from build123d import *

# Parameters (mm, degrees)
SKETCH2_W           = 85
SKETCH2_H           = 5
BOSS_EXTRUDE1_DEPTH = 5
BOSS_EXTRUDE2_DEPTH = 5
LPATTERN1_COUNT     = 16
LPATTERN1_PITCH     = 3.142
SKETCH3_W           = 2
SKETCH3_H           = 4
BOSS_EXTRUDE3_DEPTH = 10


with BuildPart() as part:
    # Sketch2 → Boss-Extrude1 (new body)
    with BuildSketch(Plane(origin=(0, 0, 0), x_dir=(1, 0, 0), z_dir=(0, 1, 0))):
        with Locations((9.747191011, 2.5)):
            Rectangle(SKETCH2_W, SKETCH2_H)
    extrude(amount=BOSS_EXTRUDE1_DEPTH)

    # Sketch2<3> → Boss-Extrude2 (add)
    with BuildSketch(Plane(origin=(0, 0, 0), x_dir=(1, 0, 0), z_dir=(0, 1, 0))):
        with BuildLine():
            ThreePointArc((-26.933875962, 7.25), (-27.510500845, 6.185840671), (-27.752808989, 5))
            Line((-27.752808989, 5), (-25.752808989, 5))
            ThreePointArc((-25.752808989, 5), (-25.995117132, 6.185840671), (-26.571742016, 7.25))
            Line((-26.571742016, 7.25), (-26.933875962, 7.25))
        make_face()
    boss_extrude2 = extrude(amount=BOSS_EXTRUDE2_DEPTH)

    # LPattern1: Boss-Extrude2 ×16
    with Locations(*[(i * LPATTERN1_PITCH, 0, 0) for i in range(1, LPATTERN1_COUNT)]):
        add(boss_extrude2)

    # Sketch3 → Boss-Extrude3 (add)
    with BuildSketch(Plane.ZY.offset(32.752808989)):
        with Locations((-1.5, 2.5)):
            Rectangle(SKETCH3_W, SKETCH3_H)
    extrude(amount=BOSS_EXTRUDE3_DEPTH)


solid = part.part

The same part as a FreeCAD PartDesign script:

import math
import FreeCAD as App
import Part
import Sketcher
from FreeCAD import Vector


def add_polygon(sketch, points):
    """Adds a closed chain of lines whose ends are joined by coincident constraints."""
    first, n = sketch.GeometryCount, len(points)
    for a, b in zip(points, points[1:] + points[:1]):
        sketch.addGeometry(Part.LineSegment(App.Vector(*a, 0), App.Vector(*b, 0)), False)
    for i in range(n):
        sketch.addConstraint(Sketcher.Constraint("Coincident", first + i, 2, first + (i + 1) % n, 1))

doc = App.newDocument("Part")
body = doc.addObject("PartDesign::Body", "Body")

# Sketch on XZ plane
sketch1 = body.newObject("Sketcher::SketchObject", "Sketch")
sketch1.AttachmentSupport = (doc.getObject("XZ_Plane"), [""])
sketch1.MapMode = "FlatFace"
add_polygon(sketch1, [(-33, -5), (-33, 0), (52, 0), (52, -5)])  # lines 0-3
sketch1.addConstraint([
    Sketcher.Constraint("Vertical", 0),
    Sketcher.Constraint("Horizontal", 1),
    Sketcher.Constraint("Vertical", 2),
    Sketcher.Constraint("Horizontal", 3),
    Sketcher.Constraint("PointOnObject", 0, 2, -1),
    Sketcher.Constraint("DistanceX", 1, 1, 1, 2, 85.0),
    Sketcher.Constraint("DistanceY", 0, 1, 0, 2, 5.0),
    Sketcher.Constraint("DistanceX", 0, 2, -1, 1, 32.752809),
])
pad1 = body.newObject("PartDesign::Pad", "Pad")
pad1.Profile = sketch1
pad1.Length = 5
pad1.Reversed = True

# Sketch on XZ plane
sketch2 = body.newObject("Sketcher::SketchObject", "Sketch001")
sketch2.AttachmentSupport = (doc.getObject("XZ_Plane"), [""])
sketch2.MapMode = "FlatFace"
sketch2.addGeometry([
    Part.ArcOfCircle(Part.Circle(Vector(-23.64, -4.78, 0), Vector(0, 0, 1), 4.12), math.radians(-177), math.radians(-143)),
    Part.LineSegment(Vector(-27.75, -5, 0), Vector(-25.75, -5, 0)),
    Part.ArcOfCircle(Part.Circle(Vector(-29.86, -4.78, 0), Vector(0, 0, 1), 4.12), math.radians(-37), math.radians(-3)),
    Part.LineSegment(Vector(-26.57, -7.25, 0), Vector(-26.93, -7.25, 0)),
], False)
sketch2.addConstraint([
    Sketcher.Constraint("Coincident", 0, 1, 1, 1),
    Sketcher.Constraint("Coincident", 1, 2, 2, 2),
    Sketcher.Constraint("Coincident", 2, 1, 3, 1),
    Sketcher.Constraint("Coincident", 3, 2, 0, 2),
    Sketcher.Constraint("Horizontal", 1),
    Sketcher.Constraint("Horizontal", 3),
    Sketcher.Constraint("Equal", 0, 2),
    Sketcher.Constraint("Horizontal", 0, 3, 2, 3),
    Sketcher.Constraint("DistanceX", 1, 1, 1, 2, 2.0),
    Sketcher.Constraint("DistanceY", 0, 1, -1, 1, 5.0),
    Sketcher.Constraint("DistanceY", 2, 1, -1, 1, 7.25),
    Sketcher.Constraint("Radius", 0, 4.117608),
    Sketcher.Constraint("DistanceX", 3, 2, 3, 1, 0.362134),
    Sketcher.Constraint("DistanceX", 0, 1, -1, 1, 27.752809),
])
pad2 = body.newObject("PartDesign::Pad", "Pad001")
pad2.Profile = sketch2
pad2.Length = 5
pad2.Reversed = True
doc.recompute()

linearpattern = body.newObject("PartDesign::LinearPattern", "LinearPattern")
linearpattern.Originals = [pad2]
linearpattern.Direction = (doc.getObject("X_Axis"), [""])
linearpattern.Mode = "offset"
linearpattern.Offset = 3.142
linearpattern.Occurrences = 16
body.Tip = linearpattern

# Sketch on YZ plane
sketch3 = body.newObject("Sketcher::SketchObject", "Sketch002")
sketch3.AttachmentSupport = (doc.getObject("YZ_Plane"), [""])
sketch3.MapMode = "FlatFace"
sketch3.AttachmentOffset = App.Placement(Vector(0, 0, -32.752809), App.Rotation())
add_polygon(sketch3, [(4.5, -2.5), (0.5, -2.5), (0.5, -0.5), (4.5, -0.5)])  # lines 0-3
sketch3.addConstraint([
    Sketcher.Constraint("Horizontal", 0),
    Sketcher.Constraint("Vertical", 1),
    Sketcher.Constraint("Horizontal", 2),
    Sketcher.Constraint("Vertical", 3),
    Sketcher.Constraint("DistanceX", 0, 2, 0, 1, 4.0),
    Sketcher.Constraint("DistanceY", 1, 1, 1, 2, 2.0),
    Sketcher.Constraint("DistanceX", -1, 1, 0, 2, 0.5),
    Sketcher.Constraint("DistanceY", 0, 2, -1, 1, 2.5),
])
pad3 = body.newObject("PartDesign::Pad", "Pad002")
pad3.Profile = sketch3
pad3.Length = 10
pad3.Reversed = True

doc.recompute()
